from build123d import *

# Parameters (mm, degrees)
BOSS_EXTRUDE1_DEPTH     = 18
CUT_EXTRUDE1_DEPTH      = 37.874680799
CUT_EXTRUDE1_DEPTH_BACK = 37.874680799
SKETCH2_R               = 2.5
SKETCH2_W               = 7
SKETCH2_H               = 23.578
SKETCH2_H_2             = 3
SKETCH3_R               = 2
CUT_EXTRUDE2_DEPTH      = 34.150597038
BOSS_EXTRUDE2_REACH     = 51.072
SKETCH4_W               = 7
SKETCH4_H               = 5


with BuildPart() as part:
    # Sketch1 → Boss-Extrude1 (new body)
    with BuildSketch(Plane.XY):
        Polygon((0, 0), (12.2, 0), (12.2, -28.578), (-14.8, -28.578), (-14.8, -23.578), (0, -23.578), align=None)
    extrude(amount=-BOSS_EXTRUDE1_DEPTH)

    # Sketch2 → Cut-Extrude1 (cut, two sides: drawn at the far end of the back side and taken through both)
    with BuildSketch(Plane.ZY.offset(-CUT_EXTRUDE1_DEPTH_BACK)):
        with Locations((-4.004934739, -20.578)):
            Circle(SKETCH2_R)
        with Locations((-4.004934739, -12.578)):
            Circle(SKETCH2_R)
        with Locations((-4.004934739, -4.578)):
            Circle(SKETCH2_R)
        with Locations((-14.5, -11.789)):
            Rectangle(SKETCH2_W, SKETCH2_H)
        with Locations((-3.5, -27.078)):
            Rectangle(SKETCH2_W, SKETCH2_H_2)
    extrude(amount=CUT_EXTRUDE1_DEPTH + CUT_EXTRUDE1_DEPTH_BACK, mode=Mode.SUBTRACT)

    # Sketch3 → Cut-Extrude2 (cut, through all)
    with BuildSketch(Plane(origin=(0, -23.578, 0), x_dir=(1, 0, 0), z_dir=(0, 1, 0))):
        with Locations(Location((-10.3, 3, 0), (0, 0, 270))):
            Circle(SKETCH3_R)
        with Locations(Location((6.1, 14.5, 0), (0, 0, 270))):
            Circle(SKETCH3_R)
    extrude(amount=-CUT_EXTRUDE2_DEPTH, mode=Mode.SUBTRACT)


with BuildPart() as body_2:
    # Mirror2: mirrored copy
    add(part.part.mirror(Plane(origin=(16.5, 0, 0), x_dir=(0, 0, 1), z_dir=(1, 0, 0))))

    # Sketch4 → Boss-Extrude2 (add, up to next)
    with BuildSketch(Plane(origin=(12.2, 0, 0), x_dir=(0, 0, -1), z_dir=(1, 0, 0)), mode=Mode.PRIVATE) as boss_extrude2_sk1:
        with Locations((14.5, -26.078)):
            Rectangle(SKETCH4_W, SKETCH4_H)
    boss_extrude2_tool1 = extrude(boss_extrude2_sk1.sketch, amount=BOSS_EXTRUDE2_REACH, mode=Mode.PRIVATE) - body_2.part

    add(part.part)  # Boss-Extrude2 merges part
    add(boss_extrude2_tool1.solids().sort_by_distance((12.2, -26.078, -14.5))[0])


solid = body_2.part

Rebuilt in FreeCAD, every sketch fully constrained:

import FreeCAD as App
import Part
import Sketcher
Q = App.Units.Quantity

doc = App.newDocument("Part")
body = doc.addObject("PartDesign::Body", "Body")

sketch1 = body.newObject("Sketcher::SketchObject", "Sketch")
sketch1.AttachmentSupport = (doc.getObject("XY_Plane"), [""])
sketch1.MapMode = "FlatFace"
sketch1.addGeometry(Part.LineSegment(App.Vector(12, 0, 0), App.Vector(0, 0, 0)), False)
sketch1.addGeometry(Part.LineSegment(App.Vector(0, 0, 0), App.Vector(0, -24, 0)), False)
sketch1.addGeometry(Part.LineSegment(App.Vector(0, -24, 0), App.Vector(-15, -24, 0)), False)
sketch1.addGeometry(Part.LineSegment(App.Vector(-15, -24, 0), App.Vector(-15, -29, 0)), False)
sketch1.addGeometry(Part.LineSegment(App.Vector(-15, -29, 0), App.Vector(12, -29, 0)), False)
sketch1.addGeometry(Part.LineSegment(App.Vector(12, -29, 0), App.Vector(12, 0, 0)), False)
sketch1.addConstraint(Sketcher.Constraint("Coincident", 0, 2, 1, 1))
sketch1.addConstraint(Sketcher.Constraint("Coincident", 1, 2, 2, 1))
sketch1.addConstraint(Sketcher.Constraint("Coincident", 2, 2, 3, 1))
sketch1.addConstraint(Sketcher.Constraint("Coincident", 3, 2, 4, 1))
sketch1.addConstraint(Sketcher.Constraint("Coincident", 4, 2, 5, 1))
sketch1.addConstraint(Sketcher.Constraint("Coincident", 5, 2, 0, 1))
sketch1.addConstraint(Sketcher.Constraint("Horizontal", 0))
sketch1.addConstraint(Sketcher.Constraint("Vertical", 1))
sketch1.addConstraint(Sketcher.Constraint("Horizontal", 2))
sketch1.addConstraint(Sketcher.Constraint("Vertical", 3))
sketch1.addConstraint(Sketcher.Constraint("Horizontal", 4))
sketch1.addConstraint(Sketcher.Constraint("Vertical", 5))
sketch1.addConstraint(Sketcher.Constraint("Coincident", 0, 2, -1, 1))
sketch1.addConstraint(Sketcher.Constraint("DistanceX", 4, 1, 4, 2, Q("27 mm")))
sketch1.addConstraint(Sketcher.Constraint("DistanceY", 3, 2, 3, 1, Q("5 mm")))
sketch1.addConstraint(Sketcher.Constraint("DistanceX", 0, 2, 0, 1, Q("12.2 mm")))
sketch1.addConstraint(Sketcher.Constraint("DistanceY", 1, 2, 1, 1, Q("23.578 mm")))
pad1 = body.newObject("PartDesign::Pad", "Pad")
pad1.Profile = sketch1
pad1.Length = 18
pad1.Reversed = True

sketch2 = body.newObject("Sketcher::SketchObject", "Sketch001")
sketch2.AttachmentSupport = (doc.getObject("YZ_Plane"), [""])
sketch2.MapMode = "FlatFace"
sketch2.addGeometry(Part.Circle(App.Vector(-20.6, -4, 0), App.Vector(0, 0, 1), 2.5), False)
sketch2.addGeometry(Part.Circle(App.Vector(-12.6, -4, 0), App.Vector(0, 0, 1), 2.5), False)
sketch2.addGeometry(Part.Circle(App.Vector(-4.6, -4, 0), App.Vector(0, 0, 1), 2.5), False)
sketch2.addGeometry(Part.LineSegment(App.Vector(0, -18, 0), App.Vector(-23.6, -18, 0)), False)
sketch2.addGeometry(Part.LineSegment(App.Vector(-23.6, -18, 0), App.Vector(-23.6, -11, 0)), False)
sketch2.addGeometry(Part.LineSegment(App.Vector(-23.6, -11, 0), App.Vector(0, -11, 0)), False)
sketch2.addGeometry(Part.LineSegment(App.Vector(0, -11, 0), App.Vector(0, -18, 0)), False)
sketch2.addGeometry(Part.LineSegment(App.Vector(-25.6, -7, 0), App.Vector(-28.6, -7, 0)), False)
sketch2.addGeometry(Part.LineSegment(App.Vector(-28.6, -7, 0), App.Vector(-28.6, 0, 0)), False)
sketch2.addGeometry(Part.LineSegment(App.Vector(-28.6, 0, 0), App.Vector(-25.6, 0, 0)), False)
sketch2.addGeometry(Part.LineSegment(App.Vector(-25.6, 0, 0), App.Vector(-25.6, -7, 0)), False)
sketch2.addConstraint(Sketcher.Constraint("Coincident", 3, 2, 4, 1))
sketch2.addConstraint(Sketcher.Constraint("Coincident", 4, 2, 5, 1))
sketch2.addConstraint(Sketcher.Constraint("Coincident", 5, 2, 6, 1))
sketch2.addConstraint(Sketcher.Constraint("Coincident", 6, 2, 3, 1))
sketch2.addConstraint(Sketcher.Constraint("Coincident", 7, 2, 8, 1))
sketch2.addConstraint(Sketcher.Constraint("Coincident", 8, 2, 9, 1))
sketch2.addConstraint(Sketcher.Constraint("Coincident", 9, 2, 10, 1))
sketch2.addConstraint(Sketcher.Constraint("Coincident", 10, 2, 7, 1))
sketch2.addConstraint(Sketcher.Constraint("Horizontal", 3))
sketch2.addConstraint(Sketcher.Constraint("Vertical", 4))
sketch2.addConstraint(Sketcher.Constraint("Horizontal", 5))
sketch2.addConstraint(Sketcher.Constraint("Vertical", 6))
sketch2.addConstraint(Sketcher.Constraint("Horizontal", 7))
sketch2.addConstraint(Sketcher.Constraint("Vertical", 8))
sketch2.addConstraint(Sketcher.Constraint("Horizontal", 9))
sketch2.addConstraint(Sketcher.Constraint("Vertical", 10))
sketch2.addConstraint(Sketcher.Constraint("Equal", 0, 1))
sketch2.addConstraint(Sketcher.Constraint("Equal", 1, 2))
sketch2.addConstraint(Sketcher.Constraint("PointOnObject", 5, 2, -2))
sketch2.addConstraint(Sketcher.Constraint("PointOnObject", 8, 2, -1))
sketch2.addConstraint(Sketcher.Constraint("Horizontal", 0, 3, 1, 3))
sketch2.addConstraint(Sketcher.Constraint("Horizontal", 1, 3, 2, 3))
sketch2.addConstraint(Sketcher.Constraint("Equal", 6, 8))
sketch2.addConstraint(Sketcher.Constraint("Diameter", 0, Q("5 mm")))
sketch2.addConstraint(Sketcher.Constraint("DistanceX", 7, 2, 7, 1, Q("3 mm")))
sketch2.addConstraint(Sketcher.Constraint("DistanceY", 4, 1, 4, 2, Q("7 mm")))
sketch2.addConstraint(Sketcher.Constraint("DistanceY", 3, 2, -1, 1, Q("18 mm")))
sketch2.addConstraint(Sketcher.Constraint("DistanceX", 0, 3, 1, 3, Q("8 mm")))
sketch2.addConstraint(Sketcher.Constraint("DistanceX", 1, 3, 2, 3, Q("8 mm")))
sketch2.addConstraint(Sketcher.Constraint("DistanceX", 3, 2, 0, 3, Q("3 mm")))
sketch2.addConstraint(Sketcher.Constraint("DistanceX", 7, 2, 4, 2, Q("5 mm")))
sketch2.addConstraint(Sketcher.Constraint("DistanceX", 3, 2, 3, 1, Q("23.578 mm")))
sketch2.addConstraint(Sketcher.Constraint("DistanceY", 0, 3, -1, 1, Q("4.004935 mm")))
pocket1 = body.newObject("PartDesign::Pocket", "Pocket")
pocket1.Profile = sketch2
pocket1.Type = "ThroughAll"
pocket1.Midplane = True

sketch3 = body.newObject("Sketcher::SketchObject", "Sketch002")
sketch3.AttachmentSupport = (doc.getObject("XZ_Plane"), [""])
sketch3.MapMode = "FlatFace"
sketch3.AttachmentOffset = App.Placement(App.Vector(0, 0, 23.578), App.Rotation())
sketch3.addGeometry(Part.Circle(App.Vector(-10.3, -3, 0), App.Vector(0, 0, 1), 2), False)
sketch3.addGeometry(Part.Circle(App.Vector(6.1, -14.5, 0), App.Vector(0, 0, 1), 2), False)
sketch3.addConstraint(Sketcher.Constraint("Equal", 0, 1))
sketch3.addConstraint(Sketcher.Constraint("Diameter", 0, Q("4 mm")))
sketch3.addConstraint(Sketcher.Constraint("DistanceY", 0, 3, -1, 1, Q("3 mm")))
sketch3.addConstraint(Sketcher.Constraint("DistanceX", 0, 3, -1, 1, Q("10.3 mm")))
sketch3.addConstraint(Sketcher.Constraint("DistanceX", -1, 1, 1, 3, Q("6.1 mm")))
sketch3.addConstraint(Sketcher.Constraint("DistanceY", 1, 3, -1, 1, Q("14.5 mm")))
pocket2 = body.newObject("PartDesign::Pocket", "Pocket001")
pocket2.Profile = sketch3
pocket2.Type = "ThroughAll"
pocket2.Reversed = True
body2 = doc.addObject("PartDesign::Body", "Body001")
body2.AllowCompound = True
doc.recompute()

mirroring = doc.addObject("Part::Mirroring", "Mirroring")
mirroring.Source = body
mirroring.Base = App.Vector(16.5, 0, 0)
mirroring.Normal = App.Vector(1, 0, 0)
body2.BaseFeature = mirroring
doc.recompute()

boolean = body2.newObject("PartDesign::Boolean", "Boolean")
boolean.Type = "Fuse"
boolean.addObjects([body])

sketch4 = body2.newObject("Sketcher::SketchObject", "Sketch003")
sketch4.AttachmentSupport = (doc.getObject("YZ_Plane001"), [""])
sketch4.MapMode = "FlatFace"
sketch4.AttachmentOffset = App.Placement(App.Vector(0, 0, 12.2), App.Rotation())
sketch4.addGeometry(Part.LineSegment(App.Vector(-24, -11, 0), App.Vector(-29, -11, 0)), False)
sketch4.addGeometry(Part.LineSegment(App.Vector(-29, -11, 0), App.Vector(-29, -18, 0)), False)
sketch4.addGeometry(Part.LineSegment(App.Vector(-29, -18, 0), App.Vector(-24, -18, 0)), False)
sketch4.addGeometry(Part.LineSegment(App.Vector(-24, -18, 0), App.Vector(-24, -11, 0)), False)
sketch4.addConstraint(Sketcher.Constraint("Coincident", 0, 2, 1, 1))
sketch4.addConstraint(Sketcher.Constraint("Coincident", 1, 2, 2, 1))
sketch4.addConstraint(Sketcher.Constraint("Coincident", 2, 2, 3, 1))
sketch4.addConstraint(Sketcher.Constraint("Coincident", 3, 2, 0, 1))
sketch4.addConstraint(Sketcher.Constraint("Horizontal", 0))
sketch4.addConstraint(Sketcher.Constraint("Vertical", 1))
sketch4.addConstraint(Sketcher.Constraint("Horizontal", 2))
sketch4.addConstraint(Sketcher.Constraint("Vertical", 3))
sketch4.addConstraint(Sketcher.Constraint("DistanceX", 0, 2, 0, 1, Q("5 mm")))
sketch4.addConstraint(Sketcher.Constraint("DistanceY", 1, 2, 1, 1, Q("7 mm")))
sketch4.addConstraint(Sketcher.Constraint("DistanceY", 0, 2, -1, 1, Q("11 mm")))
sketch4.addConstraint(Sketcher.Constraint("DistanceX", 0, 2, -1, 1, Q("28.578 mm")))
pad2 = body2.newObject("PartDesign::Pad", "Pad001")
pad2.Profile = sketch4
pad2.Type = "UpToFirst"
mirroring.Visibility = False

doc.recompute()
